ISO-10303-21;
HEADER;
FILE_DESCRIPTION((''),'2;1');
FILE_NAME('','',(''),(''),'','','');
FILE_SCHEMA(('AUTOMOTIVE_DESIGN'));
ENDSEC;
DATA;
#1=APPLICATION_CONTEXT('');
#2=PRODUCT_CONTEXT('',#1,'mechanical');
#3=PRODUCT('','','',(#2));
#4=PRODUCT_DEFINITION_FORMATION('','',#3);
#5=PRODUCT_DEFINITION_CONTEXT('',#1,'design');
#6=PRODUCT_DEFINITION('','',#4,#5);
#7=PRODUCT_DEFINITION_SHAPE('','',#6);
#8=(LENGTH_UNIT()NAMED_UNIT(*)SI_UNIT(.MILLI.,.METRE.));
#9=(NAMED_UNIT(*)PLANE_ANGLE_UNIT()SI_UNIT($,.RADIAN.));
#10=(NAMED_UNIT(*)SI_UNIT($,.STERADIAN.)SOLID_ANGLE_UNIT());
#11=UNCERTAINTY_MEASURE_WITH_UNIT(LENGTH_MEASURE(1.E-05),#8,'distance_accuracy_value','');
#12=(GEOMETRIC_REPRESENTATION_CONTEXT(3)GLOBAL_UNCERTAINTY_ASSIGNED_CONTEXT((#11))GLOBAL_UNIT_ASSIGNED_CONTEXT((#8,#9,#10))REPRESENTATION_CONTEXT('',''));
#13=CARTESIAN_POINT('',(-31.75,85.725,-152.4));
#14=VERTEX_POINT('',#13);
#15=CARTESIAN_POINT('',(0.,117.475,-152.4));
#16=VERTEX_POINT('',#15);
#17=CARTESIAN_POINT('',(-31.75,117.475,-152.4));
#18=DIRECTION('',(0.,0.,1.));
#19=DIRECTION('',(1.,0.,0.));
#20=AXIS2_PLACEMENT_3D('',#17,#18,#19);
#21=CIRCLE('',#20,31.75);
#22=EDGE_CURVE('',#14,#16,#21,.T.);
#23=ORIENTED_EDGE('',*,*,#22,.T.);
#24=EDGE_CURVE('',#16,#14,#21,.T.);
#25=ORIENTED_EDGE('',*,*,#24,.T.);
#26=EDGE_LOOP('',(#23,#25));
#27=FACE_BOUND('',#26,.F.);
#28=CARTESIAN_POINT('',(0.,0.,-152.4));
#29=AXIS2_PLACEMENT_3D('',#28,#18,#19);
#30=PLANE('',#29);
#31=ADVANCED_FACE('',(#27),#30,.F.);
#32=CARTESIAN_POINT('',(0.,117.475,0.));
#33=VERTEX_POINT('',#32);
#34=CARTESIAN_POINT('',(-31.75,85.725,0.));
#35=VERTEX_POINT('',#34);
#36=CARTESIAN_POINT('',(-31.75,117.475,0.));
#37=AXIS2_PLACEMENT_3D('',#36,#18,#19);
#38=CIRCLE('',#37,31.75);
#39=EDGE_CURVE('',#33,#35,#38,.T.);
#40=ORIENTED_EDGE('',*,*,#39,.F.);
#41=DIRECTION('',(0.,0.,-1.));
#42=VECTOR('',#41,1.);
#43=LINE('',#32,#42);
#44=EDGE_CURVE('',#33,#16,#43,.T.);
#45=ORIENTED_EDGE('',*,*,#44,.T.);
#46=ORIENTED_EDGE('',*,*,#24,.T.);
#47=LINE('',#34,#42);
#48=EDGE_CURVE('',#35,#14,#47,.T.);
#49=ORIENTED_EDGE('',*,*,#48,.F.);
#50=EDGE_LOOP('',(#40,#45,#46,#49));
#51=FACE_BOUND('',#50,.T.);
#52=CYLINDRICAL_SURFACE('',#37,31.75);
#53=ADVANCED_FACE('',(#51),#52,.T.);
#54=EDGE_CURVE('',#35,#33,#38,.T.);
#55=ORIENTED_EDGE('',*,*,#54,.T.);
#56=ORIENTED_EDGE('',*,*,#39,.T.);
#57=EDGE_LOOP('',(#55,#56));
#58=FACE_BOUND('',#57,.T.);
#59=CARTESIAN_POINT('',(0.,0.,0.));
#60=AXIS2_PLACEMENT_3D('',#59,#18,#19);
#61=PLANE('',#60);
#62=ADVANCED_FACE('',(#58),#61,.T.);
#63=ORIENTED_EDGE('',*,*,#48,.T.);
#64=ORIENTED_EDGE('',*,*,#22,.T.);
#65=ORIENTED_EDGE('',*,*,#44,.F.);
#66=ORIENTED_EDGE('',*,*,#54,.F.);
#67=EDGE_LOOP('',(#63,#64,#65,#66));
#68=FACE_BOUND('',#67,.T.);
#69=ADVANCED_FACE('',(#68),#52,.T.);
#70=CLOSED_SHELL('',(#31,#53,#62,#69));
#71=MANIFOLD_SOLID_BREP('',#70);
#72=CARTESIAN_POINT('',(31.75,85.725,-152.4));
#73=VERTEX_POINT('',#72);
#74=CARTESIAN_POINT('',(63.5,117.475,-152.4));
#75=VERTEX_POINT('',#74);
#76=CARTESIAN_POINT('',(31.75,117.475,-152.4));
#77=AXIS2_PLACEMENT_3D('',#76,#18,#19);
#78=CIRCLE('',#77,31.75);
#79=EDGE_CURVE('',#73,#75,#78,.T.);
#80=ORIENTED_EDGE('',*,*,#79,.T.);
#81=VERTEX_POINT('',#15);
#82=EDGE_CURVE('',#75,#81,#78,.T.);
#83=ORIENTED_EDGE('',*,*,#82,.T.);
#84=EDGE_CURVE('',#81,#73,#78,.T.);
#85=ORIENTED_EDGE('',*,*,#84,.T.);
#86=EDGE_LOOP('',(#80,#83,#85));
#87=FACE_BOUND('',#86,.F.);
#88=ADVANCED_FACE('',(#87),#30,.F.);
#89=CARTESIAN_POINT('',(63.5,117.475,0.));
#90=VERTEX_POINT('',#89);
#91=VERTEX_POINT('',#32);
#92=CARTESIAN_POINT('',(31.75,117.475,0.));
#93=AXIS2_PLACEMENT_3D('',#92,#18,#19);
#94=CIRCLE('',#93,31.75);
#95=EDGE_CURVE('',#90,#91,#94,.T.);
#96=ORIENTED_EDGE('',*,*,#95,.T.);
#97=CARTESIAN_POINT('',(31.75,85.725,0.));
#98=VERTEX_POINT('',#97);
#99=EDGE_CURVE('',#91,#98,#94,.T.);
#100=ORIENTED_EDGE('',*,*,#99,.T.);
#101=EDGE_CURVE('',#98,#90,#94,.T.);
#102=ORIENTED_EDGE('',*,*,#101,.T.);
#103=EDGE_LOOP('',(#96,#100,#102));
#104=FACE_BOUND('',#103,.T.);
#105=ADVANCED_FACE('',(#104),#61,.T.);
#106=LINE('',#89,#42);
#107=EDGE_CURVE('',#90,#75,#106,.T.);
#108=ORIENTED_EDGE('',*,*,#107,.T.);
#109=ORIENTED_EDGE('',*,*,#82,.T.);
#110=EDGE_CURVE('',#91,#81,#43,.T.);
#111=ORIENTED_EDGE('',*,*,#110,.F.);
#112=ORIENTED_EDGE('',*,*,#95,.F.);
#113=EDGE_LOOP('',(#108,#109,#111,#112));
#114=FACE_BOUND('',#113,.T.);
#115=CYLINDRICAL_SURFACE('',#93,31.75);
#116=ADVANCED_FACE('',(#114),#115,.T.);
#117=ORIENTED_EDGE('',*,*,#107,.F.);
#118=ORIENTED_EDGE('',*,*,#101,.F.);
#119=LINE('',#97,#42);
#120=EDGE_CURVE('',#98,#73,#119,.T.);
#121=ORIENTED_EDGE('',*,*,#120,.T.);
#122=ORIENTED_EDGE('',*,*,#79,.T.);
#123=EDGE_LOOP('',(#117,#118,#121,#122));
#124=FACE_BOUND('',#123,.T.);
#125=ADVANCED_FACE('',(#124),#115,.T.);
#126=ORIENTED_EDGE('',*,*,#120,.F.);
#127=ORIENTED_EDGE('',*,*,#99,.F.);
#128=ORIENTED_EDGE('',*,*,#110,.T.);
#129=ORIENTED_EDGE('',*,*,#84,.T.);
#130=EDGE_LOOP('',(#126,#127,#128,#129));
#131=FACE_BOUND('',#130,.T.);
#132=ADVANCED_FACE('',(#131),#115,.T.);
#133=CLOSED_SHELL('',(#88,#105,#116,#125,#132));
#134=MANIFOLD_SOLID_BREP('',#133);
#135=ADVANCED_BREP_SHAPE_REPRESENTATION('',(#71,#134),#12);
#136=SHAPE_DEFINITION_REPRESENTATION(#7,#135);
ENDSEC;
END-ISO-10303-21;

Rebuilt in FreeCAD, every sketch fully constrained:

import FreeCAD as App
import Part
import Sketcher
Q = App.Units.Quantity

doc = App.newDocument("Part")
body = doc.addObject("PartDesign::Body", "Body")
body.AllowCompound = True

sketch1 = body.newObject("Sketcher::SketchObject", "Sketch")
sketch1.AttachmentSupport = (doc.getObject("XY_Plane"), [""])
sketch1.MapMode = "FlatFace"
sketch1.addGeometry([
    Part.Circle(App.Vector(-32, 117, 0), App.Vector(0, 0, 1), 32),
    Part.Circle(App.Vector(32, 117, 0), App.Vector(0, 0, 1), 32),
], False)
sketch1.addConstraint([
    Sketcher.Constraint("Equal", 0, 1),
    Sketcher.Constraint("Symmetric", 0, 3, 1, 3, -2),
    Sketcher.Constraint("Diameter", 0, Q("2.5 in")),
    Sketcher.Constraint("DistanceX", 0, 3, 1, 3, Q("2.5 in")),
    Sketcher.Constraint("DistanceY", -1, 1, 0, 3, Q("4.625 in")),
])
pad1 = body.newObject("PartDesign::Pad", "Pad")
pad1.Profile = sketch1
pad1.Length = Q("6 in")
pad1.Reversed = True

doc.recompute()
